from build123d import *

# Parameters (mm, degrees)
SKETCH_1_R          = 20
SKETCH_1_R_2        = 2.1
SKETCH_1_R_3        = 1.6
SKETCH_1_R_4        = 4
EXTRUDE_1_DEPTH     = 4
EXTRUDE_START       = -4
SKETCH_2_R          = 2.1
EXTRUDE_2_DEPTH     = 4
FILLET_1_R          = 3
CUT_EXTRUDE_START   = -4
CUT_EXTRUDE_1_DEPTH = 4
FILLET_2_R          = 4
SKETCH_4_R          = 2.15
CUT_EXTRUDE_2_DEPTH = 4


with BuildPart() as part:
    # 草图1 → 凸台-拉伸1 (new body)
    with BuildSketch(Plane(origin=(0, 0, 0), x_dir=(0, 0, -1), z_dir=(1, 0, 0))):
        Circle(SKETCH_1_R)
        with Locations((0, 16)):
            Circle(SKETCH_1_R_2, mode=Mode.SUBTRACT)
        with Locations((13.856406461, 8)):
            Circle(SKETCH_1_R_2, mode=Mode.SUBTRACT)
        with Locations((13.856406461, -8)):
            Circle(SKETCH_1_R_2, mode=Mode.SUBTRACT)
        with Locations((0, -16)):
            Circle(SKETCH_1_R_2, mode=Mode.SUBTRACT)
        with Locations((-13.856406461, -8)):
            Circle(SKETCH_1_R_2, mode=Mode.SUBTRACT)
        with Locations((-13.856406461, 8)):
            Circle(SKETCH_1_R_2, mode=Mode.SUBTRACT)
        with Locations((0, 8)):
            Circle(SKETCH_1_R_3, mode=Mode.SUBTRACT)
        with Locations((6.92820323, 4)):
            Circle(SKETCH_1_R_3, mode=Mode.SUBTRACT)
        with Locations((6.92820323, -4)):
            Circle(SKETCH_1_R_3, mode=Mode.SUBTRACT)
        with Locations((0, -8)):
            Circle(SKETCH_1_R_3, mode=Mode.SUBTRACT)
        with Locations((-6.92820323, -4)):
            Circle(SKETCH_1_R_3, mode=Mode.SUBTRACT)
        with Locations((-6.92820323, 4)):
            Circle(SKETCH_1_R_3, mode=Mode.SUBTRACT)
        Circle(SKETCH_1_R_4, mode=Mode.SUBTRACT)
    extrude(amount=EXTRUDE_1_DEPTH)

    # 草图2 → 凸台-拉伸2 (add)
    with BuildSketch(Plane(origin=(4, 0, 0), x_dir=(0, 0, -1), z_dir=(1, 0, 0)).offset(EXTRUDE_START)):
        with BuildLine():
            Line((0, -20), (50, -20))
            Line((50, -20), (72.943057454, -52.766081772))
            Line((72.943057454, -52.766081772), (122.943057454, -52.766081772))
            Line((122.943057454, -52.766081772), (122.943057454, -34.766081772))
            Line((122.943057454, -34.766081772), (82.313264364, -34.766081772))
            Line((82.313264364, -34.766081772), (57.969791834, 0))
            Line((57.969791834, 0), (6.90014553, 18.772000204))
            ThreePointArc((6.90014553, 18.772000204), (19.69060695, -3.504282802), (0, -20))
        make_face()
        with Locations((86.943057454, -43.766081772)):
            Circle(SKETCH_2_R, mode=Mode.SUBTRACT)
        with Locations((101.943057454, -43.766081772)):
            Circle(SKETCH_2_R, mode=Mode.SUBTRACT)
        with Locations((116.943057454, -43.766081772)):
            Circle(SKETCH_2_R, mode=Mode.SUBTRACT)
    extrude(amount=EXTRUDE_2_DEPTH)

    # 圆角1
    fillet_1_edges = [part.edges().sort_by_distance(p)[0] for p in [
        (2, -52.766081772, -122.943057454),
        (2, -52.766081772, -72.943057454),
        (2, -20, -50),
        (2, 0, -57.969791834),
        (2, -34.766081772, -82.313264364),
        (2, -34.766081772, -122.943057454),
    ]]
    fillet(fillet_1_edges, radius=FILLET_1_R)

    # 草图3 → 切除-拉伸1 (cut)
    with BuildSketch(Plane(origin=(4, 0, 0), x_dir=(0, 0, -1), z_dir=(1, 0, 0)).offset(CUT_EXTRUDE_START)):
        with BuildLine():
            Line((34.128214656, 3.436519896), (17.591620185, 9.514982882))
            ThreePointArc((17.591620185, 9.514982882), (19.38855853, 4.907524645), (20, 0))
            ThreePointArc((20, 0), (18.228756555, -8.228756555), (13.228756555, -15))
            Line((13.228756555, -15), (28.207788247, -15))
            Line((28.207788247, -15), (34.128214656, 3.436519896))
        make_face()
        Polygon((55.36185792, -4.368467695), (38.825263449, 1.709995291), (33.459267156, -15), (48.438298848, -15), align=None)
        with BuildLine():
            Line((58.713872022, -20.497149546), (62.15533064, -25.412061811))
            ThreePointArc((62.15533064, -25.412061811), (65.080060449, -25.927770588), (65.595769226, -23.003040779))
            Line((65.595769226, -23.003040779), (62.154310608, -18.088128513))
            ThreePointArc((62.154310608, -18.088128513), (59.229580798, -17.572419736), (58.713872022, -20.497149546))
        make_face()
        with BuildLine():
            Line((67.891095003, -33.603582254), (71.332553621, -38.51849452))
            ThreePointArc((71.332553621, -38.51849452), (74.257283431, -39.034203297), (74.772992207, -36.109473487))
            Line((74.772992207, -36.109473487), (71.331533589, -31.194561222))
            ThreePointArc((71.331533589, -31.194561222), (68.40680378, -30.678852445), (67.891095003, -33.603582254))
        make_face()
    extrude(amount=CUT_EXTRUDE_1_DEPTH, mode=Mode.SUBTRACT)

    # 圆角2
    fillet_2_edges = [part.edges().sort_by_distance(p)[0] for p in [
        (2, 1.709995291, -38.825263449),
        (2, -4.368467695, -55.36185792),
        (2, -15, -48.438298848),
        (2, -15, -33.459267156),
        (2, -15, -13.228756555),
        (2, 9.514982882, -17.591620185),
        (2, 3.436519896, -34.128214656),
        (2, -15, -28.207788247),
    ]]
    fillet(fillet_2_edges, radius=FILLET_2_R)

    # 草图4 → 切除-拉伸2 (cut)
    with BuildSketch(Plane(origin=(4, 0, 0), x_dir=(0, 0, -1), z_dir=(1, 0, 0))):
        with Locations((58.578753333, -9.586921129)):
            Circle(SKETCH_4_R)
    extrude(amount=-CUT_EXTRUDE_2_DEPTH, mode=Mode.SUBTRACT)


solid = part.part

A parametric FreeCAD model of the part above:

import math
import FreeCAD as App
import Part
import Sketcher
Q = App.Units.Quantity


def edges_at(feature, points):
    """Names of the edges that pass closest to the given points."""
    edges = feature.Shape.Edges
    near = lambda p: min(range(len(edges)), key=lambda i: edges[i].distToShape(Part.Vertex(*p))[0])
    return sorted({f"Edge{near(p) + 1}" for p in points})


def add_polygon(sketch, points):
    """Adds a closed chain of lines whose ends are joined by coincident constraints."""
    first, n = sketch.GeometryCount, len(points)
    for a, b in zip(points, points[1:] + points[:1]):
        sketch.addGeometry(Part.LineSegment(App.Vector(*a, 0), App.Vector(*b, 0)), False)
    for i in range(n):
        sketch.addConstraint(Sketcher.Constraint("Coincident", first + i, 2, first + (i + 1) % n, 1))

doc = App.newDocument("Part")
params = doc.addObject("Spreadsheet::Sheet", "Params")
for row, (alias, value) in enumerate([
    ("sketch1_diameter", "40 mm"),
    ("sketch1_diameter2", "8 mm"),
    ("sketch1_diameter3", "4.2 mm"),
    ("sketch1_diameter4", "3.2 mm"),
    ("pad1_length", "4 mm"),
    ("sketch2_radius", "20 mm"),
    ("sketch2_diameter", "4.2 mm"),
    ("sketch2_width", "18 mm"),
    ("sketch2_height", "50 mm"),
    ("sketch2_length", "40 mm"),
    ("pad2_length", "4 mm"),
    ("fillet_radius", "3 mm"),
    ("sketch3_radius", "20 mm"),
    ("sketch3_radius2", "2.1 mm"),
    ("sketch3_length", "6 mm"),
    ("pocket1_length", "4 mm"),
    ("fillet2_radius", "4 mm"),
    ("sketch4_diameter", "4.3 mm"),
    ("pocket2_length", "4 mm"),
], start=1):
    params.set(f"A{row}", alias)
    params.set(f"B{row}", "=" + value)
    params.setAlias(f"B{row}", alias)

body = doc.addObject("PartDesign::Body", "Body")

# Sketch on YZ plane
sketch1 = body.newObject("Sketcher::SketchObject", "Sketch")
sketch1.AttachmentSupport = (doc.getObject("YZ_Plane"), [""])
sketch1.MapMode = "FlatFace"
sketch1.addGeometry([
    Part.Circle(App.Vector(0, 0, 0), App.Vector(0, 0, 1), 20),  # 0
    Part.Circle(App.Vector(-8, 13.856406, 0), App.Vector(0, 0, 1), 2.1),  # 1
    Part.Circle(App.Vector(-4, 6.928203, 0), App.Vector(0, 0, 1), 1.6),  # 2
    Part.Circle(App.Vector(-16, 0, 0), App.Vector(0, 0, 1), 2.1),  # 3
    Part.Circle(App.Vector(-8, 0, 0), App.Vector(0, 0, 1), 1.6),  # 4
    Part.Circle(App.Vector(-4, -6.928203, 0), App.Vector(0, 0, 1), 1.6),  # 5
    Part.Circle(App.Vector(-8, -13.856406, 0), App.Vector(0, 0, 1), 2.1),  # 6
    Part.Circle(App.Vector(8, 13.856406, 0), App.Vector(0, 0, 1), 2.1),  # 7
    Part.Circle(App.Vector(4, 6.928203, 0), App.Vector(0, 0, 1), 1.6),  # 8
    Part.Circle(App.Vector(0, 0, 0), App.Vector(0, 0, 1), 4),  # 9
    Part.Circle(App.Vector(4, -6.928203, 0), App.Vector(0, 0, 1), 1.6),  # 10
    Part.Circle(App.Vector(8, 0, 0), App.Vector(0, 0, 1), 1.6),  # 11
    Part.Circle(App.Vector(8, -13.856406, 0), App.Vector(0, 0, 1), 2.1),  # 12
    Part.Circle(App.Vector(16, 0, 0), App.Vector(0, 0, 1), 2.1),  # 13
], False)
sketch1.addConstraint([
    Sketcher.Constraint("Coincident", 0, 3, -1, 1),
    Sketcher.Constraint("Coincident", 9, 3, -1, 1),
    Sketcher.Constraint("Equal", 1, 3),
    Sketcher.Constraint("Equal", 2, 4),
    Sketcher.Constraint("Equal", 4, 5),
    Sketcher.Constraint("Equal", 3, 6),
    Sketcher.Constraint("Equal", 6, 7),
    Sketcher.Constraint("Equal", 5, 8),
    Sketcher.Constraint("Equal", 8, 10),
    Sketcher.Constraint("Equal", 10, 11),
    Sketcher.Constraint("Equal", 7, 12),
    Sketcher.Constraint("Equal", 12, 13),
    Sketcher.Constraint("Symmetric", 6, 3, 7, 3, -1, 1),
    Sketcher.Constraint("Symmetric", 5, 3, 8, 3, -1, 1),
    Sketcher.Constraint("Symmetric", 2, 3, 10, 3, -1, 1),
    Sketcher.Constraint("Symmetric", 4, 3, 11, 3, -1, 1),
    Sketcher.Constraint("Symmetric", 1, 3, 12, 3, -1, 1),
    Sketcher.Constraint("Symmetric", 3, 3, 13, 3, -1, 1),
    Sketcher.Constraint("Symmetric", 1, 3, 7, 3, -2),
    Sketcher.Constraint("Symmetric", 2, 3, 8, 3, -2),
    Sketcher.Constraint("PointOnObject", 3, 3, -1),
    Sketcher.Constraint("PointOnObject", 4, 3, -1),
    Sketcher.Constraint("Vertical", 1, 3, 4, 3),
    Sketcher.Constraint("Diameter", 0, 40.0),
    Sketcher.Constraint("Diameter", 9, 8.0),
    Sketcher.Constraint("Diameter", 1, 4.2),
    Sketcher.Constraint("Diameter", 2, 3.2),
    Sketcher.Constraint("DistanceX", 1, 3, -1, 1, 8.0),
    Sketcher.Constraint("DistanceX", 2, 3, -1, 1, 4.0),
    Sketcher.Constraint("DistanceX", 3, 3, -1, 1, 16.0),
    Sketcher.Constraint("DistanceY", 5, 3, 1, 3, 20.78461),
    Sketcher.Constraint("DistanceY", -1, 1, 1, 3, 13.856406),
])
sketch1.setExpression("Constraints[23]", "Params.sketch1_diameter")
sketch1.setExpression("Constraints[24]", "Params.sketch1_diameter2")
sketch1.setExpression("Constraints[25]", "Params.sketch1_diameter3")
sketch1.setExpression("Constraints[26]", "Params.sketch1_diameter4")
pad1 = body.newObject("PartDesign::Pad", "Pad")
pad1.Profile = sketch1
pad1.setExpression("Length", "Params.pad1_length")

# Sketch on YZ plane
sketch2 = body.newObject("Sketcher::SketchObject", "Sketch001")
sketch2.AttachmentSupport = (doc.getObject("YZ_Plane"), [""])
sketch2.MapMode = "FlatFace"
sketch2.addGeometry([
    Part.LineSegment(App.Vector(-20, 0, 0), App.Vector(-20, -50, 0)),  # 0
    Part.LineSegment(App.Vector(-20, -50, 0), App.Vector(-52.766082, -72.943057, 0)),  # 1
    Part.LineSegment(App.Vector(-52.766082, -72.943057, 0), App.Vector(-52.766082, -122.943057, 0)),  # 2
    Part.LineSegment(App.Vector(-52.766082, -122.943057, 0), App.Vector(-34.766082, -122.943057, 0)),  # 3
    Part.LineSegment(App.Vector(-34.766082, -122.943057, 0), App.Vector(-34.766082, -82.313264, 0)),  # 4
    Part.LineSegment(App.Vector(-34.766082, -82.313264, 0), App.Vector(0, -57.969792, 0)),  # 5
    Part.LineSegment(App.Vector(0, -57.969792, 0), App.Vector(18.772, -6.900146, 0)),  # 6
    Part.ArcOfCircle(Part.Circle(App.Vector(0, 0, 0), App.Vector(0, 0, 1), 20), math.radians(180), math.radians(339.81776)),  # 7
    Part.Circle(App.Vector(-43.766082, -86.943057, 0), App.Vector(0, 0, 1), 2.1),  # 8
    Part.Circle(App.Vector(-43.766082, -101.943057, 0), App.Vector(0, 0, 1), 2.1),  # 9
    Part.Circle(App.Vector(-43.766082, -116.943057, 0), App.Vector(0, 0, 1), 2.1),  # 10
], False)
sketch2.addConstraint([
    Sketcher.Constraint("Coincident", 0, 2, 1, 1),
    Sketcher.Constraint("Coincident", 1, 2, 2, 1),
    Sketcher.Constraint("Coincident", 2, 2, 3, 1),
    Sketcher.Constraint("Coincident", 3, 2, 4, 1),
    Sketcher.Constraint("Coincident", 4, 2, 5, 1),
    Sketcher.Constraint("Coincident", 5, 2, 6, 1),
    Sketcher.Constraint("Tangent", 6, 2, 7, 2),
    Sketcher.Constraint("Tangent", 7, 1, 0, 1),
    Sketcher.Constraint("Vertical", 0),
    Sketcher.Constraint("Vertical", 2),
    Sketcher.Constraint("Horizontal", 3),
    Sketcher.Constraint("Vertical", 4),
    Sketcher.Constraint("Coincident", 7, 3, -1, 1),
    Sketcher.Constraint("Equal", 8, 9),
    Sketcher.Constraint("Equal", 9, 10),
    Sketcher.Constraint("PointOnObject", 5, 2, -2),
    Sketcher.Constraint("Parallel", 1, 5),
    Sketcher.Constraint("Vertical", 8, 3, 9, 3),
    Sketcher.Constraint("Vertical", 9, 3, 10, 3),
    Sketcher.Constraint("Equal", 0, 2),
    Sketcher.Constraint("Radius", 7, 20.0),
    Sketcher.Constraint("Diameter", 8, 4.2),
    Sketcher.Constraint("DistanceX", 3, 1, 3, 2, 18.0),
    Sketcher.Constraint("DistanceY", 0, 2, 0, 1, 50.0),
    Sketcher.Constraint("Angle", 1, Q("-145 deg")),
    Sketcher.Constraint("Distance", 1, 40.0),
    Sketcher.Constraint("DistanceY", 9, 3, 8, 3, 15.0),
    Sketcher.Constraint("DistanceY", 10, 3, 9, 3, 15.0),
    Sketcher.Constraint("DistanceX", 1, 2, 8, 3, 9.0),
    Sketcher.Constraint("DistanceY", 8, 3, 1, 2, 14.0),
    Sketcher.Constraint("DistanceX", -1, 1, 6, 2, 18.772),
])
sketch2.setExpression("Constraints[20]", "Params.sketch2_radius")
sketch2.setExpression("Constraints[21]", "Params.sketch2_diameter")
sketch2.setExpression("Constraints[22]", "Params.sketch2_width")
sketch2.setExpression("Constraints[23]", "Params.sketch2_height")
sketch2.setExpression("Constraints[25]", "Params.sketch2_length")
pad2 = body.newObject("PartDesign::Pad", "Pad001")
pad2.Profile = sketch2
pad2.setExpression("Length", "Params.pad2_length")
doc.recompute()

fillet = body.newObject("PartDesign::Fillet", "Fillet")
fillet.Base = (pad2, edges_at(pad2, [
    (2, -52.766, -122.943),
    (2, -52.766, -72.943),
    (2, -20, -50),
    (2, 0, -57.97),
    (2, -34.766, -82.313),
    (2, -34.766, -122.943),
]))
fillet.setExpression("Radius", "Params.fillet_radius")

# Sketch on YZ plane
sketch3 = body.newObject("Sketcher::SketchObject", "Sketch002")
sketch3.AttachmentSupport = (doc.getObject("YZ_Plane"), [""])
sketch3.MapMode = "FlatFace"
sketch3.addGeometry(Part.LineSegment(App.Vector(3.43652, -34.128215, 0), App.Vector(9.514983, -17.59162, 0)), False)  # 0
sketch3.addGeometry(Part.ArcOfCircle(Part.Circle(App.Vector(0, 0, 0), App.Vector(0, 0, 1), 20), math.radians(-90), math.radians(-61.591862)), False)  # 1
sketch3.addGeometry(Part.ArcOfCircle(Part.Circle(App.Vector(0, 0, 0), App.Vector(0, 0, 1), 20), math.radians(-138.590378), math.radians(-90)), False)  # 2
sketch3.addGeometry(Part.LineSegment(App.Vector(-15, -13.228757, 0), App.Vector(-15, -28.207788, 0)), False)  # 3
sketch3.addGeometry(Part.LineSegment(App.Vector(-15, -28.207788, 0), App.Vector(3.43652, -34.128215, 0)), False)  # 4
add_polygon(sketch3, [(-4.368468, -55.361858), (1.709995, -38.825263), (-15, -33.459267), (-15, -48.438299)])  # lines 5-8
sketch3.addGeometry(Part.LineSegment(App.Vector(-20.49715, -58.713872, 0), App.Vector(-25.412062, -62.155331, 0)), False)  # 9
sketch3.addGeometry(Part.ArcOfCircle(Part.Circle(App.Vector(-24.207551, -63.87555, 0), App.Vector(0, 0, 1), 2.1), math.radians(125), math.radians(305)), False)  # 10
sketch3.addGeometry(Part.LineSegment(App.Vector(-23.003041, -65.595769, 0), App.Vector(-18.088129, -62.154311, 0)), False)  # 11
sketch3.addGeometry(Part.ArcOfCircle(Part.Circle(App.Vector(-19.292639, -60.434091, 0), App.Vector(0, 0, 1), 2.1), math.radians(-55), math.radians(125)), False)  # 12
sketch3.addGeometry(Part.LineSegment(App.Vector(-33.603582, -67.891095, 0), App.Vector(-38.518495, -71.332554, 0)), False)  # 13
sketch3.addGeometry(Part.ArcOfCircle(Part.Circle(App.Vector(-37.313984, -73.052773, 0), App.Vector(0, 0, 1), 2.1), math.radians(125), math.radians(305)), False)  # 14
sketch3.addGeometry(Part.LineSegment(App.Vector(-36.109473, -74.772992, 0), App.Vector(-31.194561, -71.331534, 0)), False)  # 15
sketch3.addGeometry(Part.ArcOfCircle(Part.Circle(App.Vector(-32.399072, -69.611314, 0), App.Vector(0, 0, 1), 2.1), math.radians(-55), math.radians(125)), False)  # 16
sketch3.addConstraint([
    Sketcher.Constraint("Coincident", 0, 2, 1, 2),
    Sketcher.Constraint("Tangent", 1, 1, 2, 2),
    Sketcher.Constraint("Coincident", 2, 1, 3, 1),
    Sketcher.Constraint("Coincident", 3, 2, 4, 1),
    Sketcher.Constraint("Coincident", 4, 2, 0, 1),
    Sketcher.Constraint("Tangent", 9, 2, 10, 1),
    Sketcher.Constraint("Tangent", 10, 2, 11, 1),
    Sketcher.Constraint("Tangent", 11, 2, 12, 1),
    Sketcher.Constraint("Tangent", 12, 2, 9, 1),
    Sketcher.Constraint("Tangent", 13, 2, 14, 1),
    Sketcher.Constraint("Tangent", 14, 2, 15, 1),
    Sketcher.Constraint("Tangent", 15, 2, 16, 1),
    Sketcher.Constraint("Tangent", 16, 2, 13, 1),
    Sketcher.Constraint("Vertical", 3),
    Sketcher.Constraint("Vertical", 7),
    Sketcher.Constraint("Coincident", 1, 3, -1, 1),
    Sketcher.Constraint("Equal", 1, 2),
    Sketcher.Constraint("Equal", 10, 12),
    Sketcher.Constraint("Equal", 12, 14),
    Sketcher.Constraint("Equal", 14, 16),
    Sketcher.Constraint("PointOnObject", 1, 1, -2),
    Sketcher.Constraint("Parallel", 0, 5),
    Sketcher.Constraint("Parallel", 4, 6),
    Sketcher.Constraint("Parallel", 11, 13),
    Sketcher.Constraint("Vertical", 3, 2, 6, 2),
    Sketcher.Constraint("Equal", 3, 7),
    Sketcher.Constraint("Equal", 0, 5),
    Sketcher.Constraint("Equal", 11, 13),
    Sketcher.Constraint("Radius", 1, 20.0),
    Sketcher.Constraint("Radius", 10, 2.1),
    Sketcher.Constraint("Angle", 9, Q("-145 deg")),
    Sketcher.Constraint("Distance", 9, 6.0),
    Sketcher.Constraint("DistanceX", 2, 1, -1, 1, 15.0),
    Sketcher.Constraint("Distance", 4, 19.363799),
    Sketcher.Constraint("DistanceY", 3, 2, 3, 1, 14.979032),
    Sketcher.Constraint("DistanceY", 7, 2, -1, 1, 48.438299),
    Sketcher.Constraint("Distance", 0, 17.618362),
    Sketcher.Constraint("DistanceX", 10, 3, -1, 1, 24.207551),
    Sketcher.Constraint("DistanceY", 10, 3, -1, 1, 63.87555),
    Sketcher.Constraint("DistanceX", 16, 3, -1, 1, 32.399072),
    Sketcher.Constraint("DistanceY", 0, 2, -1, 1, 17.59162),
    Sketcher.Constraint("DistanceY", 14, 3, 12, 3, 12.618682),
    Sketcher.Constraint("DistanceY", 5, 2, 4, 2, 4.697049),
])
sketch3.setExpression("Constraints[32]", "Params.sketch3_radius")
sketch3.setExpression("Constraints[33]", "Params.sketch3_radius2")
sketch3.setExpression("Constraints[35]", "Params.sketch3_length")
pocket1 = body.newObject("PartDesign::Pocket", "Pocket")
pocket1.Profile = sketch3
pocket1.setExpression("Length", "Params.pocket1_length")
pocket1.Reversed = True
doc.recompute()

fillet2 = body.newObject("PartDesign::Fillet", "Fillet001")
fillet2.Base = (pocket1, edges_at(pocket1, [
    (2, 1.71, -38.825),
    (2, -4.368, -55.362),
    (2, -15, -48.438),
    (2, -15, -33.459),
    (2, -15, -13.229),
    (2, 9.515, -17.592),
    (2, 3.437, -34.128),
    (2, -15, -28.208),
]))
fillet2.setExpression("Radius", "Params.fillet2_radius")

# Sketch on YZ plane
sketch4 = body.newObject("Sketcher::SketchObject", "Sketch003")
sketch4.AttachmentSupport = (doc.getObject("YZ_Plane"), [""])
sketch4.MapMode = "FlatFace"
sketch4.AttachmentOffset = App.Placement(App.Vector(0, 0, 4), App.Rotation())
sketch4.addGeometry(Part.Circle(App.Vector(-9.586921, -58.578753, 0), App.Vector(0, 0, 1), 2.15), False)
sketch4.addConstraint([
    Sketcher.Constraint("Diameter", 0, 4.3),
    Sketcher.Constraint("DistanceX", 0, 3, -1, 1, 9.586921),
    Sketcher.Constraint("DistanceY", 0, 3, -1, 1, 58.578753),
])
sketch4.setExpression("Constraints[0]", "Params.sketch4_diameter")
pocket2 = body.newObject("PartDesign::Pocket", "Pocket001")
pocket2.Profile = sketch4
pocket2.setExpression("Length", "Params.pocket2_length")

doc.recompute()
